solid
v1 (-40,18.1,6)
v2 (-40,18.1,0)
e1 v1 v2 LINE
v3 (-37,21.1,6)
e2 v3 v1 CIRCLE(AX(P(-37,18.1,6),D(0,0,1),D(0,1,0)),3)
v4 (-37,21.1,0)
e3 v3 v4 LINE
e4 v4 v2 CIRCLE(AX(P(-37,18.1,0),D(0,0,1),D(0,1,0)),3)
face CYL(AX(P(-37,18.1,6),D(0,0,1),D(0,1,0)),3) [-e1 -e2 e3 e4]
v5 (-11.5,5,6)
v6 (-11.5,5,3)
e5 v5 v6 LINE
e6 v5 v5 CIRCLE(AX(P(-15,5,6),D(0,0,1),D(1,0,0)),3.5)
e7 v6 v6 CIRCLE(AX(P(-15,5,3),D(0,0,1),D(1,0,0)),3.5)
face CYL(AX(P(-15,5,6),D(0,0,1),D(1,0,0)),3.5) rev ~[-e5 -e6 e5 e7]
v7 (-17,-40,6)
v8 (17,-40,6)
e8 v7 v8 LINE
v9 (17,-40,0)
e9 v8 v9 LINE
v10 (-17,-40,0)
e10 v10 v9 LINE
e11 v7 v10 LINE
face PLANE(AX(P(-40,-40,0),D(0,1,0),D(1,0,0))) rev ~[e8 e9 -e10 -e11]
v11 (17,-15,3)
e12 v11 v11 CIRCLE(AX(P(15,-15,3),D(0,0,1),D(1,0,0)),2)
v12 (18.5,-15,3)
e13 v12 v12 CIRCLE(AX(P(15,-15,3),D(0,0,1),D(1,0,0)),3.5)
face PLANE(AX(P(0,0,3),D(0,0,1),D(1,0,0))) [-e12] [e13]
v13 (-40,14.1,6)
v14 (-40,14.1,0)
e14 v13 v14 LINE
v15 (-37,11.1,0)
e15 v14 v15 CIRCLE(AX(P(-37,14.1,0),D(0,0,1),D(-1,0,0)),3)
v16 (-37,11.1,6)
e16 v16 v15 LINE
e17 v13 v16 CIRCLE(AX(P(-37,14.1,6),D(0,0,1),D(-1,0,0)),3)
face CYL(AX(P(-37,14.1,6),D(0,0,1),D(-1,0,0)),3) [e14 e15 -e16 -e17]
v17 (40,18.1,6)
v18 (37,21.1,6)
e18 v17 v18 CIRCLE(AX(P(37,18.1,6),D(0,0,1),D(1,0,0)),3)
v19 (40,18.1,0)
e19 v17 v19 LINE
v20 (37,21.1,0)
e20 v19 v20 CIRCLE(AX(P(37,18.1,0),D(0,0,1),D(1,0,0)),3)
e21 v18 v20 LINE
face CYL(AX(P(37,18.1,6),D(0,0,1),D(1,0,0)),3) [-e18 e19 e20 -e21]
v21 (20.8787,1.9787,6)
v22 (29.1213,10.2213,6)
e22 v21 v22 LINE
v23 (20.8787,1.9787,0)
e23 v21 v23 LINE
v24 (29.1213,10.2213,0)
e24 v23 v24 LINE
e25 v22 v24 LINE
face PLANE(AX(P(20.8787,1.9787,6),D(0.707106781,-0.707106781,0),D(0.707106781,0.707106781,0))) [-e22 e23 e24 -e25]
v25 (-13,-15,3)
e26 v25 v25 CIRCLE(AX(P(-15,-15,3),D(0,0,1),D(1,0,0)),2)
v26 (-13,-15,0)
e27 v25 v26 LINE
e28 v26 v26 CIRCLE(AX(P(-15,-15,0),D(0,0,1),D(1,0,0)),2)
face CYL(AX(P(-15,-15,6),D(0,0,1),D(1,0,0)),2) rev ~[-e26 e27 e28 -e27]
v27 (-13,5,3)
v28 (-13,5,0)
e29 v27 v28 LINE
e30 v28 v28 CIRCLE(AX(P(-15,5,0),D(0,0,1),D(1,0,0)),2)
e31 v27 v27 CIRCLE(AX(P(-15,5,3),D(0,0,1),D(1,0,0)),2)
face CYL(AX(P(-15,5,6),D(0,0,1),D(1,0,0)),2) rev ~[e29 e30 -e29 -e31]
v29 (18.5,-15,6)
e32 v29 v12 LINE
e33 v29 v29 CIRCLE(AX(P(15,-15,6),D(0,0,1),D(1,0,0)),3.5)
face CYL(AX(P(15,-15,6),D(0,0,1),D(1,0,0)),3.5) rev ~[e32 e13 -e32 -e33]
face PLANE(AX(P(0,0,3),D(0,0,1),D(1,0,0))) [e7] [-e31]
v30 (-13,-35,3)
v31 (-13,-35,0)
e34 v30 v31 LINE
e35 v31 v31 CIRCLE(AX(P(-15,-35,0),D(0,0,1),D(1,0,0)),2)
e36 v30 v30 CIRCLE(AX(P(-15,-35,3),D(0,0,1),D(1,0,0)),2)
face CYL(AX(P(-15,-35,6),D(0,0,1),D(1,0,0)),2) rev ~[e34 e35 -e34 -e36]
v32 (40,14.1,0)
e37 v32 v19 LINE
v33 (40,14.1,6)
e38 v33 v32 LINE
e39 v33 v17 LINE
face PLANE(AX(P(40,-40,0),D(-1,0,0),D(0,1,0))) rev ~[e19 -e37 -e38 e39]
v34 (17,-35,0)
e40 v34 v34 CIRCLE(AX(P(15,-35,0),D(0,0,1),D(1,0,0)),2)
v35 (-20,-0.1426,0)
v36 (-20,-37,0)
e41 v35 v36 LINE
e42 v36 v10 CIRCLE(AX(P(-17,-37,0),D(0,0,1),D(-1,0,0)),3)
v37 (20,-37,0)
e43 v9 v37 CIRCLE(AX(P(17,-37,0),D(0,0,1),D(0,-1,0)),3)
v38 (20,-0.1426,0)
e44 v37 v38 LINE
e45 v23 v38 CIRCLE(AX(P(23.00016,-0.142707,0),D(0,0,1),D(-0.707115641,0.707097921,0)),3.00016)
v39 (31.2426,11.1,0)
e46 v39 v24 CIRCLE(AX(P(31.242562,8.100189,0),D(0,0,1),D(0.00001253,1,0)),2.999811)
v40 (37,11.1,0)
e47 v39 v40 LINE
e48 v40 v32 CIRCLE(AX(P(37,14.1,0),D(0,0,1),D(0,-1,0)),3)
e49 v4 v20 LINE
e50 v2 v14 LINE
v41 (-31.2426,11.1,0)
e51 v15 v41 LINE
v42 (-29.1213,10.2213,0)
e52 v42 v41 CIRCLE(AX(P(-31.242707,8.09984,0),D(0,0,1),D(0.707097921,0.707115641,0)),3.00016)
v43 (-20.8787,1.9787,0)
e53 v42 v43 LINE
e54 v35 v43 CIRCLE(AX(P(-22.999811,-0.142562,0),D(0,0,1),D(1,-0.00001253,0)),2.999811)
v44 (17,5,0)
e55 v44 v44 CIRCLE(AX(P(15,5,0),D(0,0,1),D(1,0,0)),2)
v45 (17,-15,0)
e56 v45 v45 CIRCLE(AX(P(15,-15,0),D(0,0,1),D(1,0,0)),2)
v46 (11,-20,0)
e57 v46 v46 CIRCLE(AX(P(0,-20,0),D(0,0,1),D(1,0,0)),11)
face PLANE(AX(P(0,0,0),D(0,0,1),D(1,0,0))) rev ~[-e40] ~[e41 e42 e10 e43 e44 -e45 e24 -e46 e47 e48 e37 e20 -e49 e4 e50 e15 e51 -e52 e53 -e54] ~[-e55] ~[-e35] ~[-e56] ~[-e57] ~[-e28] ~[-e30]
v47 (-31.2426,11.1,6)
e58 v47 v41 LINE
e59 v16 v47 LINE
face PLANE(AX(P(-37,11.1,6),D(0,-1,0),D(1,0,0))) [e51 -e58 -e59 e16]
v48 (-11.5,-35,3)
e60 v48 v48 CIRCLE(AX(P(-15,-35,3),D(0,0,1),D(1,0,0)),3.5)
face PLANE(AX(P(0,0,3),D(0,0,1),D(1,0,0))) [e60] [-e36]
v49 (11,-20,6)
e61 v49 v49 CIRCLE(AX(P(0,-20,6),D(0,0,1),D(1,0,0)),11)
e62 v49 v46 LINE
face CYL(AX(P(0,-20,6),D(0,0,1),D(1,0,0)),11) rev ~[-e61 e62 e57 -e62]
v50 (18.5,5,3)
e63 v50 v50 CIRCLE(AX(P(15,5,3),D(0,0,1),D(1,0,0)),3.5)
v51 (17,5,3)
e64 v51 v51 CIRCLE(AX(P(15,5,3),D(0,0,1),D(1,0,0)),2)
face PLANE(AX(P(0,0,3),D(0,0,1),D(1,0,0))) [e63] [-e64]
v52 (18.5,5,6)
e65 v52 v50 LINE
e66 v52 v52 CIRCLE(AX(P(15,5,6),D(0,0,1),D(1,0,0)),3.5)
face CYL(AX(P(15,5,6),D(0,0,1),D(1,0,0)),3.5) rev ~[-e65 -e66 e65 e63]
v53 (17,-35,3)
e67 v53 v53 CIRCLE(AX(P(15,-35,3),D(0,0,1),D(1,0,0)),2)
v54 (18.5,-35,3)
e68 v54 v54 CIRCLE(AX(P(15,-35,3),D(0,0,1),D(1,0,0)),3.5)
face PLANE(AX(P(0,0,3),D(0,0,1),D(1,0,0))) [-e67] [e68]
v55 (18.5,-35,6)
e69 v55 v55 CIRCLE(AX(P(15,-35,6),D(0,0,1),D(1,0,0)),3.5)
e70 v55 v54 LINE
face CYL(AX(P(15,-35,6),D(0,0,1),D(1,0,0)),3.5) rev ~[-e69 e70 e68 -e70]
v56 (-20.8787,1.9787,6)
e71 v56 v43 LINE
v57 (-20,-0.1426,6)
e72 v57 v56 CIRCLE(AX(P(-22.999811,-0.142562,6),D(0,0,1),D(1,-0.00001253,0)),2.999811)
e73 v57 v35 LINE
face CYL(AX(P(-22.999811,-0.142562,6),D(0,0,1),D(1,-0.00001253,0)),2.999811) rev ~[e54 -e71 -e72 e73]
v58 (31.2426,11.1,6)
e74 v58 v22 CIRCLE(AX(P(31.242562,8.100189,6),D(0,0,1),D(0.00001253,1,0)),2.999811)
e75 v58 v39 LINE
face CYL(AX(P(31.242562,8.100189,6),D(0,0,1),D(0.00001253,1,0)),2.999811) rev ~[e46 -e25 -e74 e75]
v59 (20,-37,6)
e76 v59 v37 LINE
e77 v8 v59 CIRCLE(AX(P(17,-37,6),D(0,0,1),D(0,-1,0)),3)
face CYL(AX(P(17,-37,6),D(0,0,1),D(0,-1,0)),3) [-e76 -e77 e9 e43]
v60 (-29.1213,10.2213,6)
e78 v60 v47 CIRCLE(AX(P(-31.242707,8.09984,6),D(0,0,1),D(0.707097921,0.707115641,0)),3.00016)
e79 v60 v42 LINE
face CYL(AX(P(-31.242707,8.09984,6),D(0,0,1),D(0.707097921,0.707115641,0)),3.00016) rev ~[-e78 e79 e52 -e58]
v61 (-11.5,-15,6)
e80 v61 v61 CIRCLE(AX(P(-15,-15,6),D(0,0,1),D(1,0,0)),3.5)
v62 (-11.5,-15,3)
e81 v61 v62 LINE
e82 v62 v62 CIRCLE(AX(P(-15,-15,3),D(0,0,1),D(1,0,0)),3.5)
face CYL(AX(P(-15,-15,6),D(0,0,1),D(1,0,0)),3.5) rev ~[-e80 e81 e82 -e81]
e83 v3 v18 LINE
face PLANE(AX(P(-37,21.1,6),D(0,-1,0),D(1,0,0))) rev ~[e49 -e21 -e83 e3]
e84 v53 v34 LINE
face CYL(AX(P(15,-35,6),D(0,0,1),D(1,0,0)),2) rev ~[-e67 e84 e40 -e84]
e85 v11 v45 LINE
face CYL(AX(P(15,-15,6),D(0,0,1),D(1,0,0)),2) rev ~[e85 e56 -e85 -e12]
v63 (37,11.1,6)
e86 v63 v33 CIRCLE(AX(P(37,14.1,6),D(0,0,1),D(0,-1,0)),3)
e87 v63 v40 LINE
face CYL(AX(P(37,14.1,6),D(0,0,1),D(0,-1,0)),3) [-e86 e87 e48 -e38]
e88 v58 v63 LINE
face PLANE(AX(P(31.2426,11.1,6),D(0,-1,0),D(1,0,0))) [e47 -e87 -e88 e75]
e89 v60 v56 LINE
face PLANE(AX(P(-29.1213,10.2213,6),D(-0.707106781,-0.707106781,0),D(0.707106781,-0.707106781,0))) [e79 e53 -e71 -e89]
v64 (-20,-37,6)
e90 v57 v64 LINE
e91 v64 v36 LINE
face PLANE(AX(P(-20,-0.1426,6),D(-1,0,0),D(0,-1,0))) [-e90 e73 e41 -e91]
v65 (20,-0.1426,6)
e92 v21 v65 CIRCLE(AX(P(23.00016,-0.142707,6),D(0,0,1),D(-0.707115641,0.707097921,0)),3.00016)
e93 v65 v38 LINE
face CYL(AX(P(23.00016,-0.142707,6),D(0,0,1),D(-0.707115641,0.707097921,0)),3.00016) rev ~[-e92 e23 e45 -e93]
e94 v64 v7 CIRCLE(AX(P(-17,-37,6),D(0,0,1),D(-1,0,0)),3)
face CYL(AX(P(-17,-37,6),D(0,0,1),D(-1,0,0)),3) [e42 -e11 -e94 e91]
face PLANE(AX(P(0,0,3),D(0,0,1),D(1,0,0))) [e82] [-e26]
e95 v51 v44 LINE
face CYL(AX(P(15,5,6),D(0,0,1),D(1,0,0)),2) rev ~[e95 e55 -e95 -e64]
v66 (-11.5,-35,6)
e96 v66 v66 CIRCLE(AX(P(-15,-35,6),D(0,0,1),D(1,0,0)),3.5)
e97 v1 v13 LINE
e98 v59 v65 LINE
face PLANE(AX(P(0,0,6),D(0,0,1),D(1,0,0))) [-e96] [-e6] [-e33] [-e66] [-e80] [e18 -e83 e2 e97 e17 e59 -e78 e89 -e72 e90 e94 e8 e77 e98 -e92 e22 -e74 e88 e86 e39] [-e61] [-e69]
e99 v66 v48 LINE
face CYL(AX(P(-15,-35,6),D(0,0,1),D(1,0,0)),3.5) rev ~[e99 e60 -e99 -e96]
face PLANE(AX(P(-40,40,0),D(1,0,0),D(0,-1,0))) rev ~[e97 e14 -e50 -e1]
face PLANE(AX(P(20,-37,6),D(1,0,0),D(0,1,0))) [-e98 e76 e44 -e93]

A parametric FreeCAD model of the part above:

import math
import FreeCAD as App
import Part
import Sketcher

V = App.Vector
Q = App.Units.Quantity


def add_polygon(sketch, points):
    """Adds a closed chain of lines whose ends are joined by coincident constraints."""
    first, n = sketch.GeometryCount, len(points)
    for a, b in zip(points, points[1:] + points[:1]):
        sketch.addGeometry(Part.LineSegment(App.Vector(*a, 0), App.Vector(*b, 0)), False)
    for i in range(n):
        sketch.addConstraint(Sketcher.Constraint("Coincident", first + i, 2, first + (i + 1) % n, 1))

doc = App.newDocument("Part")
body = doc.addObject("PartDesign::Body", "Body")

# Sketch on XY plane
sketch1 = body.newObject("Sketcher::SketchObject", "Sketch")
sketch1.AttachmentSupport = (doc.getObject("XY_Plane"), [""])
sketch1.MapMode = "FlatFace"
add_polygon(sketch1, [(-40, 40), (-40, -40), (40, -40), (40, 40)])  # lines 0-3
sketch1.addConstraint([
    Sketcher.Constraint("Vertical", 0),
    Sketcher.Constraint("Horizontal", 1),
    Sketcher.Constraint("Vertical", 2),
    Sketcher.Constraint("Horizontal", 3),
    Sketcher.Constraint("Symmetric", 0, 2, 2, 2, -1, 1),
    Sketcher.Constraint("Equal", 3, 0),
    Sketcher.Constraint("DistanceX", 1, 1, 1, 2, Q("80 mm")),
])
pad1 = body.newObject("PartDesign::Pad", "Pad")
pad1.Profile = sketch1
pad1.Length = 6

# Sketch on XY plane
sketch2 = body.newObject("Sketcher::SketchObject", "Sketch001")
sketch2.AttachmentSupport = (doc.getObject("XY_Plane"), [""])
sketch2.MapMode = "FlatFace"
sketch2.AttachmentOffset = App.Placement(V(0, 0, 6), App.Rotation())
sketch2.addGeometry([
    Part.ArcOfCircle(Part.Circle(V(-37, 18.1, 0), V(0, 0, 1), 3), math.radians(90), math.radians(180)),  # 0
    Part.LineSegment(V(-37, 21.1, 0), V(37, 21.1, 0)),  # 1
    Part.ArcOfCircle(Part.Circle(V(37, 18.1, 0), V(0, 0, 1), 3), math.radians(0), math.radians(90)),  # 2
    Part.LineSegment(V(40, 18.1, 0), V(40, 40, 0)),  # 3
    Part.LineSegment(V(40, 40, 0), V(-40, 40, 0)),  # 4
    Part.LineSegment(V(-40, 40, 0), V(-40, 18.1, 0)),  # 5
    Part.ArcOfCircle(Part.Circle(V(-37, 14.1, 0), V(0, 0, 1), 3), math.radians(180), math.radians(270)),  # 6
    Part.LineSegment(V(-40, 14.1, 0), V(-40, -40, 0)),  # 7
    Part.LineSegment(V(-40, -40, 0), V(-17, -40, 0)),  # 8
    Part.ArcOfCircle(Part.Circle(V(-17, -37, 0), V(0, 0, 1), 3), math.radians(180), math.radians(270)),  # 9
    Part.LineSegment(V(-20, -37, 0), V(-20, -0.1, 0)),  # 10
    Part.ArcOfCircle(Part.Circle(V(-23, -0.1, 0), V(0, 0, 1), 3), math.radians(0), math.radians(45)),  # 11
    Part.LineSegment(V(-20.9, 2, 0), V(-29.1, 10.2, 0)),  # 12
    Part.ArcOfCircle(Part.Circle(V(-31.2, 8.1, 0), V(0, 0, 1), 3), math.radians(45), math.radians(90)),  # 13
    Part.LineSegment(V(-31.2, 11.1, 0), V(-37, 11.1, 0)),  # 14
    Part.LineSegment(V(40, -40, 0), V(40, 14.1, 0)),  # 15
    Part.ArcOfCircle(Part.Circle(V(37, 14.1, 0), V(0, 0, 1), 3), math.radians(-90), math.radians(0)),  # 16
    Part.LineSegment(V(37, 11.1, 0), V(31.2, 11.1, 0)),  # 17
    Part.ArcOfCircle(Part.Circle(V(31.2, 8.1, 0), V(0, 0, 1), 3), math.radians(90), math.radians(135)),  # 18
    Part.LineSegment(V(29.1, 10.2, 0), V(20.9, 2, 0)),  # 19
    Part.ArcOfCircle(Part.Circle(V(23, -0.1, 0), V(0, 0, 1), 3), math.radians(135), math.radians(180)),  # 20
    Part.LineSegment(V(20, -0.1, 0), V(20, -37, 0)),  # 21
    Part.ArcOfCircle(Part.Circle(V(17, -37, 0), V(0, 0, 1), 3), math.radians(-90), math.radians(0)),  # 22
    Part.LineSegment(V(17, -40, 0), V(40, -40, 0)),  # 23
    Part.Circle(V(15, -35, 0), V(0, 0, 1), 2),  # 24
    Part.Circle(V(-15, -15, 0), V(0, 0, 1), 2),  # 25
    Part.Circle(V(-15, -35, 0), V(0, 0, 1), 2),  # 26
    Part.Circle(V(15, -15, 0), V(0, 0, 1), 2),  # 27
    Part.Circle(V(-15, 5, 0), V(0, 0, 1), 2),  # 28
    Part.Circle(V(15, 5, 0), V(0, 0, 1), 2),  # 29
], False)
sketch2.addConstraint([
    Sketcher.Constraint("Tangent", 0, 1, 1, 1),
    Sketcher.Constraint("Tangent", 1, 2, 2, 2),
    Sketcher.Constraint("Tangent", 2, 1, 3, 1),
    Sketcher.Constraint("Coincident", 3, 2, 4, 1),
    Sketcher.Constraint("Coincident", 4, 2, 5, 1),
    Sketcher.Constraint("Tangent", 5, 2, 0, 2),
    Sketcher.Constraint("Tangent", 6, 1, 7, 1),
    Sketcher.Constraint("Coincident", 7, 2, 8, 1),
    Sketcher.Constraint("Tangent", 8, 2, 9, 2),
    Sketcher.Constraint("Tangent", 9, 1, 10, 1),
    Sketcher.Constraint("Tangent", 10, 2, 11, 1),
    Sketcher.Constraint("Tangent", 11, 2, 12, 1),
    Sketcher.Constraint("Tangent", 12, 2, 13, 1),
    Sketcher.Constraint("Tangent", 13, 2, 14, 1),
    Sketcher.Constraint("Tangent", 14, 2, 6, 2),
    Sketcher.Constraint("Tangent", 15, 2, 16, 2),
    Sketcher.Constraint("Tangent", 16, 1, 17, 1),
    Sketcher.Constraint("Tangent", 17, 2, 18, 1),
    Sketcher.Constraint("Tangent", 18, 2, 19, 1),
    Sketcher.Constraint("Tangent", 19, 2, 20, 1),
    Sketcher.Constraint("Tangent", 20, 2, 21, 1),
    Sketcher.Constraint("Tangent", 21, 2, 22, 2),
    Sketcher.Constraint("Tangent", 22, 1, 23, 1),
    Sketcher.Constraint("Coincident", 23, 2, 15, 1),
    Sketcher.Constraint("Horizontal", 1),
    Sketcher.Constraint("Vertical", 3),
    Sketcher.Constraint("Horizontal", 4),
    Sketcher.Constraint("Vertical", 5),
    Sketcher.Constraint("Vertical", 7),
    Sketcher.Constraint("Horizontal", 8),
    Sketcher.Constraint("Vertical", 10),
    Sketcher.Constraint("Horizontal", 14),
    Sketcher.Constraint("Vertical", 15),
    Sketcher.Constraint("Horizontal", 17),
    Sketcher.Constraint("Vertical", 21),
    Sketcher.Constraint("Horizontal", 23),
    Sketcher.Constraint("Equal", 0, 2),
    Sketcher.Constraint("Equal", 2, 6),
    Sketcher.Constraint("Equal", 6, 9),
    Sketcher.Constraint("Equal", 9, 11),
    Sketcher.Constraint("Equal", 11, 13),
    Sketcher.Constraint("Equal", 13, 16),
    Sketcher.Constraint("Equal", 16, 18),
    Sketcher.Constraint("Equal", 18, 20),
    Sketcher.Constraint("Equal", 20, 22),
    Sketcher.Constraint("Equal", 24, 25),
    Sketcher.Constraint("Equal", 25, 26),
    Sketcher.Constraint("Equal", 26, 27),
    Sketcher.Constraint("Equal", 27, 28),
    Sketcher.Constraint("Equal", 28, 29),
    Sketcher.Constraint("Symmetric", 3, 2, 7, 2, -1, 1),
    Sketcher.Constraint("Symmetric", 4, 2, 23, 2, -1, 1),
    Sketcher.Constraint("Symmetric", 6, 3, 16, 3, -2),
    Sketcher.Constraint("Symmetric", 11, 3, 20, 3, -2),
    Sketcher.Constraint("Symmetric", 24, 3, 26, 3, -2),
    Sketcher.Constraint("Symmetric", 25, 3, 27, 3, -2),
    Sketcher.Constraint("Symmetric", 28, 3, 29, 3, -2),
    Sketcher.Constraint("Perpendicular", 12, 19),
    Sketcher.Constraint("Horizontal", 12, 2, 18, 2),
    Sketcher.Constraint("Vertical", 25, 3, 26, 3),
    Sketcher.Constraint("Vertical", 26, 3, 28, 3),
    Sketcher.Constraint("Diameter", 24, Q("4 mm")),
    Sketcher.Constraint("Radius", 0, Q("3 mm")),
    Sketcher.Constraint("DistanceX", 1, 1, 1, 2, Q("74 mm")),
    Sketcher.Constraint("DistanceX", 8, 1, 8, 2, Q("23 mm")),
    Sketcher.Constraint("DistanceY", 3, 1, 3, 2, Q("21.9 mm")),
    Sketcher.Constraint("DistanceY", 7, 2, 7, 1, Q("54.1 mm")),
    Sketcher.Constraint("DistanceY", 9, 3, -1, 1, Q("37 mm")),
    Sketcher.Constraint("DistanceX", -1, 1, 24, 3, Q("15 mm")),
    Sketcher.Constraint("DistanceY", 24, 3, -1, 1, Q("35 mm")),
    Sketcher.Constraint("DistanceY", 25, 3, -1, 1, Q("15 mm")),
    Sketcher.Constraint("DistanceY", -1, 1, 28, 3, Q("5 mm")),
    Sketcher.Constraint("DistanceX", 14, 2, 14, 1, Q("5.7574 mm")),
])
pocket1 = body.newObject("PartDesign::Pocket", "Pocket")
pocket1.Profile = sketch2
pocket1.Length = 7

# Sketch on XY plane
sketch3 = body.newObject("Sketcher::SketchObject", "Sketch002")
sketch3.AttachmentSupport = (doc.getObject("XY_Plane"), [""])
sketch3.MapMode = "FlatFace"
sketch3.AttachmentOffset = App.Placement(V(0, 0, 6), App.Rotation())
sketch3.addGeometry(Part.Circle(V(0, -20, 0), V(0, 0, 1), 11), False)
sketch3.addConstraint([
    Sketcher.Constraint("PointOnObject", 0, 3, -2),
    Sketcher.Constraint("Diameter", 0, Q("22 mm")),
    Sketcher.Constraint("DistanceY", 0, 3, -1, 1, Q("20 mm")),
])
pocket2 = body.newObject("PartDesign::Pocket", "Pocket001")
pocket2.Profile = sketch3
pocket2.Length = 7

# Sketch on XY plane
sketch4 = body.newObject("Sketcher::SketchObject", "Sketch003")
sketch4.AttachmentSupport = (doc.getObject("XY_Plane"), [""])
sketch4.MapMode = "FlatFace"
sketch4.AttachmentOffset = App.Placement(V(0, 0, 6), App.Rotation())
sketch4.addGeometry([
    Part.Circle(V(15, 5, 0), V(0, 0, 1), 3.5),  # 0
    Part.Circle(V(15, 5, 0), V(0, 0, 1), 2),  # 1
    Part.Circle(V(15, -15, 0), V(0, 0, 1), 3.5),  # 2
    Part.Circle(V(15, -15, 0), V(0, 0, 1), 2),  # 3
    Part.Circle(V(15, -35, 0), V(0, 0, 1), 3.5),  # 4
    Part.Circle(V(15, -35, 0), V(0, 0, 1), 2),  # 5
    Part.Circle(V(-15, -35, 0), V(0, 0, 1), 3.5),  # 6
    Part.Circle(V(-15, -35, 0), V(0, 0, 1), 2),  # 7
    Part.Circle(V(-15, -15, 0), V(0, 0, 1), 3.5),  # 8
    Part.Circle(V(-15, -15, 0), V(0, 0, 1), 2),  # 9
    Part.Circle(V(-15, 5, 0), V(0, 0, 1), 3.5),  # 10
    Part.Circle(V(-15, 5, 0), V(0, 0, 1), 2),  # 11
], False)
sketch4.addConstraint([
    Sketcher.Constraint("Coincident", 1, 3, 0, 3),
    Sketcher.Constraint("Coincident", 3, 3, 2, 3),
    Sketcher.Constraint("Coincident", 5, 3, 4, 3),
    Sketcher.Constraint("Coincident", 7, 3, 6, 3),
    Sketcher.Constraint("Coincident", 9, 3, 8, 3),
    Sketcher.Constraint("Coincident", 11, 3, 10, 3),
    Sketcher.Constraint("Equal", 0, 2),
    Sketcher.Constraint("Equal", 1, 3),
    Sketcher.Constraint("Equal", 2, 4),
    Sketcher.Constraint("Equal", 3, 5),
    Sketcher.Constraint("Equal", 4, 6),
    Sketcher.Constraint("Equal", 5, 7),
    Sketcher.Constraint("Equal", 6, 8),
    Sketcher.Constraint("Equal", 7, 9),
    Sketcher.Constraint("Equal", 8, 10),
    Sketcher.Constraint("Equal", 9, 11),
    Sketcher.Constraint("Symmetric", 4, 3, 6, 3, -2),
    Sketcher.Constraint("Symmetric", 2, 3, 8, 3, -2),
    Sketcher.Constraint("Symmetric", 0, 3, 10, 3, -2),
    Sketcher.Constraint("Vertical", 1, 3, 2, 3),
    Sketcher.Constraint("Vertical", 3, 3, 4, 3),
    Sketcher.Constraint("Diameter", 0, Q("7 mm")),
    Sketcher.Constraint("Diameter", 1, Q("4 mm")),
    Sketcher.Constraint("DistanceX", -1, 1, 0, 3, Q("15 mm")),
    Sketcher.Constraint("DistanceY", -1, 1, 0, 3, Q("5 mm")),
    Sketcher.Constraint("DistanceY", 2, 3, -1, 1, Q("15 mm")),
    Sketcher.Constraint("DistanceY", 4, 3, -1, 1, Q("35 mm")),
])
pocket3 = body.newObject("PartDesign::Pocket", "Pocket002")
pocket3.Profile = sketch4
pocket3.Length = 3

doc.recompute()
